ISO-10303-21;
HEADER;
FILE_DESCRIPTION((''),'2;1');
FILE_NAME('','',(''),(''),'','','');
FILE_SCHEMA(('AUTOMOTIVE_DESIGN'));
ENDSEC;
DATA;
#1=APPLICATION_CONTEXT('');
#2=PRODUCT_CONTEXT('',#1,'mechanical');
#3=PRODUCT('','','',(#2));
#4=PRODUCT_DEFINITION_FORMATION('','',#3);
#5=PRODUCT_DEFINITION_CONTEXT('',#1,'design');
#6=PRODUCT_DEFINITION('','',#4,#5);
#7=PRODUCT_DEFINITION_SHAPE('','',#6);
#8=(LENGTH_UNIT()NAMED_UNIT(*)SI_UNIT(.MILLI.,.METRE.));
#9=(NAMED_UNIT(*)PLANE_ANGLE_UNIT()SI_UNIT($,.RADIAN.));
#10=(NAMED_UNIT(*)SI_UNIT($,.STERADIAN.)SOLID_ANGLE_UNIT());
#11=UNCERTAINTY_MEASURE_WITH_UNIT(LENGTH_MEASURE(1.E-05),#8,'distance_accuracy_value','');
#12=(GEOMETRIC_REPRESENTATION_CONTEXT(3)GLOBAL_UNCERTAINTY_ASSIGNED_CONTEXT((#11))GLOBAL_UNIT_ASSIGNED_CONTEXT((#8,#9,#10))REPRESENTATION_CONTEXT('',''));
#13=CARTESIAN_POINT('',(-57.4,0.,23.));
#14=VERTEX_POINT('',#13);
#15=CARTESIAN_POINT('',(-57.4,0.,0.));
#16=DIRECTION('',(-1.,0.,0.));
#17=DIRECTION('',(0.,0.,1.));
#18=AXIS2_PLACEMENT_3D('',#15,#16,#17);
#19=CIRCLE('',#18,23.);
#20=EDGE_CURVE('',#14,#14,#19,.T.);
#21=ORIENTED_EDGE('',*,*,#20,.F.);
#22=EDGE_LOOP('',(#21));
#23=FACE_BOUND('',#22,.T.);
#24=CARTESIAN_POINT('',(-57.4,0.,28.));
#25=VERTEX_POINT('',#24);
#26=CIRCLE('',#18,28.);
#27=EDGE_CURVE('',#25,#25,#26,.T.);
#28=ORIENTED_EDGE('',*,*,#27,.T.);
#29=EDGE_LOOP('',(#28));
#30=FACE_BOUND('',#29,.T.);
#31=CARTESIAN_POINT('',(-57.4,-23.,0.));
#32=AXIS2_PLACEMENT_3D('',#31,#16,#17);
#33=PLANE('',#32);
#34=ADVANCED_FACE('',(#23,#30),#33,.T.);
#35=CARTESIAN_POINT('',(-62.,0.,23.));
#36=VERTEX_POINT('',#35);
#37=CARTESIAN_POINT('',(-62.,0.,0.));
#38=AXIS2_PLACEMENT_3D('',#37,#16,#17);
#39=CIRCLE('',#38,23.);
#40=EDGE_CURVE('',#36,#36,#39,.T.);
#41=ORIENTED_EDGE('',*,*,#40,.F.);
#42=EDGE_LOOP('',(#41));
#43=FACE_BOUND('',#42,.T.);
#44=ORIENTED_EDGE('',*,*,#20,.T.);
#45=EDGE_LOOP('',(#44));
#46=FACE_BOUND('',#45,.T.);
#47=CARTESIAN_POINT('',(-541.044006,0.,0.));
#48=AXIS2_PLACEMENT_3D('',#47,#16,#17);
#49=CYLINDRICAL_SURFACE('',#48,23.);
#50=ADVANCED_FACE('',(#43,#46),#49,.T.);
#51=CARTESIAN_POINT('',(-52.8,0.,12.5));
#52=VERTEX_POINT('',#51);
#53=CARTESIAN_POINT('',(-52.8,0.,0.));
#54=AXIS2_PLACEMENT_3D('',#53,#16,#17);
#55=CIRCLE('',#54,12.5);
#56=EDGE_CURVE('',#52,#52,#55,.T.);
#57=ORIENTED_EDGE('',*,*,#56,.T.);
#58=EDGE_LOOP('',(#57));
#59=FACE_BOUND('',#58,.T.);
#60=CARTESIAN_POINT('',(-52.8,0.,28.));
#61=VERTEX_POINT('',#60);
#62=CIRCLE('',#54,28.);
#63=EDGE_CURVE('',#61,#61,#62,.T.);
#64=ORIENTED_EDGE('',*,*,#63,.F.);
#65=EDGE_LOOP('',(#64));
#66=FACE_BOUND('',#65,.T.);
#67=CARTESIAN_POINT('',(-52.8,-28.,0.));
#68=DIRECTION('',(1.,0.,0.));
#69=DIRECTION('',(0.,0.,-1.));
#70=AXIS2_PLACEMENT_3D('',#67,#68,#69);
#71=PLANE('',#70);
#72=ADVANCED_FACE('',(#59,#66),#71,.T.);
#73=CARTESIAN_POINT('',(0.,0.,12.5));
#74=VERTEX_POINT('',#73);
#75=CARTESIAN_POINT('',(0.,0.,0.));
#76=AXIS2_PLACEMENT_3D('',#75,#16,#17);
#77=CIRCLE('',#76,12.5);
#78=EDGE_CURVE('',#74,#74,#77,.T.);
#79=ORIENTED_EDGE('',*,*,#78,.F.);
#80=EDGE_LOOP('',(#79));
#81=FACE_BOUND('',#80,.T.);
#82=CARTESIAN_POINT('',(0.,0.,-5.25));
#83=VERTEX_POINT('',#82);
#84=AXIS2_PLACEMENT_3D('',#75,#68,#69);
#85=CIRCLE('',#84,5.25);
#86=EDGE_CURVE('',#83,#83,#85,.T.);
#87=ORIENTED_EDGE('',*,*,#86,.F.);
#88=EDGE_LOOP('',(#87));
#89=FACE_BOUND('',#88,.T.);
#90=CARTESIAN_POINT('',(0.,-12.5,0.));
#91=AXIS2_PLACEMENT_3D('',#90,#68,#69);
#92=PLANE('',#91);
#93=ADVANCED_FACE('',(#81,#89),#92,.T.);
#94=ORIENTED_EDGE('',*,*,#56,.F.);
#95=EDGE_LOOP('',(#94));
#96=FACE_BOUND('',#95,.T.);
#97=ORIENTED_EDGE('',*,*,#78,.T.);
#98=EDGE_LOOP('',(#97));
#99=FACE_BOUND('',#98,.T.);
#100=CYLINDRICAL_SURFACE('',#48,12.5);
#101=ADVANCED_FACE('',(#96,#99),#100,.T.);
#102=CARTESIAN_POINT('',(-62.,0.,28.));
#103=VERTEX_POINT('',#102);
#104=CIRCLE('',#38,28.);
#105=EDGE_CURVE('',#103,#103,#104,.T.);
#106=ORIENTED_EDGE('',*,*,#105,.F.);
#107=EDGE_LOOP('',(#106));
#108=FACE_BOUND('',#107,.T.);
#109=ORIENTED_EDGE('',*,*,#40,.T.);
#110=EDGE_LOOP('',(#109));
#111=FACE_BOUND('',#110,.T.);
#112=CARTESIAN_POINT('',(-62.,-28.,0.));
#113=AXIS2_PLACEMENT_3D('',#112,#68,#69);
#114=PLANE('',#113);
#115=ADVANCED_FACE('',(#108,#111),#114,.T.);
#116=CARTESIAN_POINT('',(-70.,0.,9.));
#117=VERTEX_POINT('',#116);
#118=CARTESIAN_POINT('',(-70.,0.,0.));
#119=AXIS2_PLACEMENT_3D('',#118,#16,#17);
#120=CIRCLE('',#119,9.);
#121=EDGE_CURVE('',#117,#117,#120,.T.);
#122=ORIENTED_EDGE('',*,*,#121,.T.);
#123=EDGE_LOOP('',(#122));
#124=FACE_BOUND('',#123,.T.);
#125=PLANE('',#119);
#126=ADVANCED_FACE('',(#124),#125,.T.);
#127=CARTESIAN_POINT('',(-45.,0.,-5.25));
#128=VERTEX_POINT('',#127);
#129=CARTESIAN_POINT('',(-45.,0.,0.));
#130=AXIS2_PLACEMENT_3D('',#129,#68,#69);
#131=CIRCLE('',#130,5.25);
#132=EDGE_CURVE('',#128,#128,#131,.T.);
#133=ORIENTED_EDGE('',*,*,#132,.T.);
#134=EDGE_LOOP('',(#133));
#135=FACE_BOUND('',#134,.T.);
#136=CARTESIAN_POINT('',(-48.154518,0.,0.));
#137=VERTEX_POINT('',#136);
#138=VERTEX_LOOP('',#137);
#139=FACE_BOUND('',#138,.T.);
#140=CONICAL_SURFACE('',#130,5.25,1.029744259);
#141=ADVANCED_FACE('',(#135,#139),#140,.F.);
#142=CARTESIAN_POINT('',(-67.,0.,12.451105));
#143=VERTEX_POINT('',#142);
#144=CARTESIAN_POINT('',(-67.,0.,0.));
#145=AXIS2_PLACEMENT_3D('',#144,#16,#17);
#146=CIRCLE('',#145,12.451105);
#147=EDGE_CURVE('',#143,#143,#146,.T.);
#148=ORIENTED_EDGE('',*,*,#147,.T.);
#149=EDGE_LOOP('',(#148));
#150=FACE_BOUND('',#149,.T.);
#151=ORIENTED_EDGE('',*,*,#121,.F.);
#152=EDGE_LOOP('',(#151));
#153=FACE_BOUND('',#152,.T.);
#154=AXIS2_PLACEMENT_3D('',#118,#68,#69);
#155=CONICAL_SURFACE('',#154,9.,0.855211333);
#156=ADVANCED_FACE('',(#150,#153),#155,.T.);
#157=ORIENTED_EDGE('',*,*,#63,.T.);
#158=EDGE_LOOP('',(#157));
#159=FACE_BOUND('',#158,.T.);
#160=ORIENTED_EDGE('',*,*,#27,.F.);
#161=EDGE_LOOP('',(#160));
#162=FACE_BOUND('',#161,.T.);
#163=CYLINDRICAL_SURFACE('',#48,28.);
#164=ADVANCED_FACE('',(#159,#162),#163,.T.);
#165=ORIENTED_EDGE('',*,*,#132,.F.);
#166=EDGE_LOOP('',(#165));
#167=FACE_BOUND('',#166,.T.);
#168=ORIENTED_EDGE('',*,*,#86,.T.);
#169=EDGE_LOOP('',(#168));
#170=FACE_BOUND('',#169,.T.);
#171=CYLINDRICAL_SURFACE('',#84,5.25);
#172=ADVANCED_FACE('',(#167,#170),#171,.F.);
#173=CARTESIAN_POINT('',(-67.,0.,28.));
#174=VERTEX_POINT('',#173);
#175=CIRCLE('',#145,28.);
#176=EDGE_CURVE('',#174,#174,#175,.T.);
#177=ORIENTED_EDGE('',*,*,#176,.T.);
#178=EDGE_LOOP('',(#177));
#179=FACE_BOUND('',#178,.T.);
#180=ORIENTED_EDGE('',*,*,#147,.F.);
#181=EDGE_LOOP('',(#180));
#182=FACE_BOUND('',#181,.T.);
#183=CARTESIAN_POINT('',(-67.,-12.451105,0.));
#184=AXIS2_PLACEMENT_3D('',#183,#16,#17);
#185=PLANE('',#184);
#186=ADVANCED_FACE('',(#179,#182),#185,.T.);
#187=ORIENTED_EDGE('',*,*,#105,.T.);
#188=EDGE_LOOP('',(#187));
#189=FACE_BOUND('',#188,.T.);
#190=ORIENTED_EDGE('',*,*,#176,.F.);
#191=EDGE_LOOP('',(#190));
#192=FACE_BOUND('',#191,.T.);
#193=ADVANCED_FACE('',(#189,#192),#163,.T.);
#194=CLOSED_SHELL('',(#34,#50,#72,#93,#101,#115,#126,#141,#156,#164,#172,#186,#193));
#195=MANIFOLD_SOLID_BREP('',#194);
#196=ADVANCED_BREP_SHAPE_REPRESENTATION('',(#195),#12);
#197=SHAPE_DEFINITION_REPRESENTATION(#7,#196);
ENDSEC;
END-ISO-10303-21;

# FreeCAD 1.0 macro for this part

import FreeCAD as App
import Part
import Sketcher

V = App.Vector
Q = App.Units.Quantity

doc = App.newDocument("Part")
params = doc.addObject("Spreadsheet::Sheet", "Params")
for row, (alias, value) in enumerate([
    ("sketch1_width", "70 mm"),
    ("sketch1_width2", "5 mm"),
    ("sketch1_height", "9 mm"),
    ("sketch1_width3", "4.6 mm"),
    ("sketch1_width4", "52.8 mm"),
    ("revolution_angle", "360 deg"),
    ("sketch2_diameter", "10.5 mm"),
    ("hole_diameter", "10.5 mm"),
    ("hole_depth", "45 mm"),
], start=1):
    params.set(f"A{row}", alias)
    params.set(f"B{row}", "=" + value)
    params.setAlias(f"B{row}", alias)

body = doc.addObject("PartDesign::Body", "Body")

# Sketch on XY plane
sketch1 = body.newObject("Sketcher::SketchObject", "Sketch")
sketch1.AttachmentSupport = (doc.getObject("XY_Plane"), [""])
sketch1.MapMode = "FlatFace"
sketch1.addGeometry([
    Part.LineSegment(V(0, 0, 0), V(-70, 0, 0)),  # 0
    Part.LineSegment(V(-70, 0, 0), V(-70, -9, 0)),  # 1
    Part.LineSegment(V(-70, -9, 0), V(-67, -12.5, 0)),  # 2
    Part.LineSegment(V(-67, -12.5, 0), V(-67, -28, 0)),  # 3
    Part.LineSegment(V(-67, -28, 0), V(-62, -28, 0)),  # 4
    Part.LineSegment(V(-62, -28, 0), V(-62, -23, 0)),  # 5
    Part.LineSegment(V(-62, -23, 0), V(-57.4, -23, 0)),  # 6
    Part.LineSegment(V(-57.4, -23, 0), V(-57.4, -28, 0)),  # 7
    Part.LineSegment(V(-57.4, -28, 0), V(-52.8, -28, 0)),  # 8
    Part.LineSegment(V(-52.8, -28, 0), V(-52.8, -12.5, 0)),  # 9
    Part.LineSegment(V(-52.8, -12.5, 0), V(0, -12.5, 0)),  # 10
    Part.LineSegment(V(0, -12.5, 0), V(0, 0, 0)),  # 11
], False)
sketch1.addConstraint([
    Sketcher.Constraint("Coincident", 0, 2, 1, 1),
    Sketcher.Constraint("Coincident", 1, 2, 2, 1),
    Sketcher.Constraint("Coincident", 2, 2, 3, 1),
    Sketcher.Constraint("Coincident", 3, 2, 4, 1),
    Sketcher.Constraint("Coincident", 4, 2, 5, 1),
    Sketcher.Constraint("Coincident", 5, 2, 6, 1),
    Sketcher.Constraint("Coincident", 6, 2, 7, 1),
    Sketcher.Constraint("Coincident", 7, 2, 8, 1),
    Sketcher.Constraint("Coincident", 8, 2, 9, 1),
    Sketcher.Constraint("Coincident", 9, 2, 10, 1),
    Sketcher.Constraint("Coincident", 10, 2, 11, 1),
    Sketcher.Constraint("Coincident", 11, 2, 0, 1),
    Sketcher.Constraint("Horizontal", 0),
    Sketcher.Constraint("Vertical", 1),
    Sketcher.Constraint("Vertical", 3),
    Sketcher.Constraint("Horizontal", 4),
    Sketcher.Constraint("Vertical", 5),
    Sketcher.Constraint("Horizontal", 6),
    Sketcher.Constraint("Vertical", 7),
    Sketcher.Constraint("Horizontal", 8),
    Sketcher.Constraint("Vertical", 9),
    Sketcher.Constraint("Horizontal", 10),
    Sketcher.Constraint("Vertical", 11),
    Sketcher.Constraint("Coincident", 11, 2, -1, 1),
    Sketcher.Constraint("Horizontal", 4, 2, 7, 2),
    Sketcher.Constraint("Equal", 6, 8),
    Sketcher.Constraint("Equal", 4, 5),
    Sketcher.Constraint("DistanceX", 0, 2, 0, 1, Q("70 mm")),
    Sketcher.Constraint("DistanceX", 4, 1, 4, 2, Q("5 mm")),
    Sketcher.Constraint("DistanceY", 1, 2, 1, 1, Q("9 mm")),
    Sketcher.Constraint("Angle", 2, Q("-49 deg")),
    Sketcher.Constraint("DistanceX", 6, 1, 6, 2, Q("4.6 mm")),
    Sketcher.Constraint("DistanceX", 10, 1, 10, 2, Q("52.8 mm")),
    Sketcher.Constraint("DistanceY", 9, 1, 9, 2, Q("15.5 mm")),
    Sketcher.Constraint("DistanceY", 11, 1, 11, 2, Q("12.5 mm")),
])
sketch1.setExpression("Constraints[27]", "Params.sketch1_width")
sketch1.setExpression("Constraints[28]", "Params.sketch1_width2")
sketch1.setExpression("Constraints[29]", "Params.sketch1_height")
sketch1.setExpression("Constraints[31]", "Params.sketch1_width3")
sketch1.setExpression("Constraints[32]", "Params.sketch1_width4")
revolution = body.newObject("PartDesign::Revolution", "Revolution")
revolution.Profile = sketch1
revolution.ReferenceAxis = (sketch1, ["H_Axis"])
revolution.setExpression("Angle", "Params.revolution_angle")

# Sketch on YZ plane
sketch2 = body.newObject("Sketcher::SketchObject", "Sketch001")
sketch2.AttachmentSupport = (doc.getObject("YZ_Plane"), [""])
sketch2.MapMode = "FlatFace"
sketch2.addGeometry(Part.Circle(V(0, 0, 0), V(0, 0, 1), 5), False)
sketch2.addConstraint([
    Sketcher.Constraint("Coincident", 0, 3, -1, 1),
    Sketcher.Constraint("Diameter", 0, Q("10.5 mm")),
])
sketch2.setExpression("Constraints[1]", "Params.sketch2_diameter")
doc.recompute()
hole = body.newObject("PartDesign::Hole", "Hole")
hole.Profile = sketch2
hole.ThreadType = "None"
hole.setExpression("Diameter", "Params.hole_diameter")
hole.DepthType = "Dimension"
hole.setExpression("Depth", "Params.hole_depth")
hole.DrillPoint = "Angled"
hole.DrillPointAngle = 118

doc.recompute()
